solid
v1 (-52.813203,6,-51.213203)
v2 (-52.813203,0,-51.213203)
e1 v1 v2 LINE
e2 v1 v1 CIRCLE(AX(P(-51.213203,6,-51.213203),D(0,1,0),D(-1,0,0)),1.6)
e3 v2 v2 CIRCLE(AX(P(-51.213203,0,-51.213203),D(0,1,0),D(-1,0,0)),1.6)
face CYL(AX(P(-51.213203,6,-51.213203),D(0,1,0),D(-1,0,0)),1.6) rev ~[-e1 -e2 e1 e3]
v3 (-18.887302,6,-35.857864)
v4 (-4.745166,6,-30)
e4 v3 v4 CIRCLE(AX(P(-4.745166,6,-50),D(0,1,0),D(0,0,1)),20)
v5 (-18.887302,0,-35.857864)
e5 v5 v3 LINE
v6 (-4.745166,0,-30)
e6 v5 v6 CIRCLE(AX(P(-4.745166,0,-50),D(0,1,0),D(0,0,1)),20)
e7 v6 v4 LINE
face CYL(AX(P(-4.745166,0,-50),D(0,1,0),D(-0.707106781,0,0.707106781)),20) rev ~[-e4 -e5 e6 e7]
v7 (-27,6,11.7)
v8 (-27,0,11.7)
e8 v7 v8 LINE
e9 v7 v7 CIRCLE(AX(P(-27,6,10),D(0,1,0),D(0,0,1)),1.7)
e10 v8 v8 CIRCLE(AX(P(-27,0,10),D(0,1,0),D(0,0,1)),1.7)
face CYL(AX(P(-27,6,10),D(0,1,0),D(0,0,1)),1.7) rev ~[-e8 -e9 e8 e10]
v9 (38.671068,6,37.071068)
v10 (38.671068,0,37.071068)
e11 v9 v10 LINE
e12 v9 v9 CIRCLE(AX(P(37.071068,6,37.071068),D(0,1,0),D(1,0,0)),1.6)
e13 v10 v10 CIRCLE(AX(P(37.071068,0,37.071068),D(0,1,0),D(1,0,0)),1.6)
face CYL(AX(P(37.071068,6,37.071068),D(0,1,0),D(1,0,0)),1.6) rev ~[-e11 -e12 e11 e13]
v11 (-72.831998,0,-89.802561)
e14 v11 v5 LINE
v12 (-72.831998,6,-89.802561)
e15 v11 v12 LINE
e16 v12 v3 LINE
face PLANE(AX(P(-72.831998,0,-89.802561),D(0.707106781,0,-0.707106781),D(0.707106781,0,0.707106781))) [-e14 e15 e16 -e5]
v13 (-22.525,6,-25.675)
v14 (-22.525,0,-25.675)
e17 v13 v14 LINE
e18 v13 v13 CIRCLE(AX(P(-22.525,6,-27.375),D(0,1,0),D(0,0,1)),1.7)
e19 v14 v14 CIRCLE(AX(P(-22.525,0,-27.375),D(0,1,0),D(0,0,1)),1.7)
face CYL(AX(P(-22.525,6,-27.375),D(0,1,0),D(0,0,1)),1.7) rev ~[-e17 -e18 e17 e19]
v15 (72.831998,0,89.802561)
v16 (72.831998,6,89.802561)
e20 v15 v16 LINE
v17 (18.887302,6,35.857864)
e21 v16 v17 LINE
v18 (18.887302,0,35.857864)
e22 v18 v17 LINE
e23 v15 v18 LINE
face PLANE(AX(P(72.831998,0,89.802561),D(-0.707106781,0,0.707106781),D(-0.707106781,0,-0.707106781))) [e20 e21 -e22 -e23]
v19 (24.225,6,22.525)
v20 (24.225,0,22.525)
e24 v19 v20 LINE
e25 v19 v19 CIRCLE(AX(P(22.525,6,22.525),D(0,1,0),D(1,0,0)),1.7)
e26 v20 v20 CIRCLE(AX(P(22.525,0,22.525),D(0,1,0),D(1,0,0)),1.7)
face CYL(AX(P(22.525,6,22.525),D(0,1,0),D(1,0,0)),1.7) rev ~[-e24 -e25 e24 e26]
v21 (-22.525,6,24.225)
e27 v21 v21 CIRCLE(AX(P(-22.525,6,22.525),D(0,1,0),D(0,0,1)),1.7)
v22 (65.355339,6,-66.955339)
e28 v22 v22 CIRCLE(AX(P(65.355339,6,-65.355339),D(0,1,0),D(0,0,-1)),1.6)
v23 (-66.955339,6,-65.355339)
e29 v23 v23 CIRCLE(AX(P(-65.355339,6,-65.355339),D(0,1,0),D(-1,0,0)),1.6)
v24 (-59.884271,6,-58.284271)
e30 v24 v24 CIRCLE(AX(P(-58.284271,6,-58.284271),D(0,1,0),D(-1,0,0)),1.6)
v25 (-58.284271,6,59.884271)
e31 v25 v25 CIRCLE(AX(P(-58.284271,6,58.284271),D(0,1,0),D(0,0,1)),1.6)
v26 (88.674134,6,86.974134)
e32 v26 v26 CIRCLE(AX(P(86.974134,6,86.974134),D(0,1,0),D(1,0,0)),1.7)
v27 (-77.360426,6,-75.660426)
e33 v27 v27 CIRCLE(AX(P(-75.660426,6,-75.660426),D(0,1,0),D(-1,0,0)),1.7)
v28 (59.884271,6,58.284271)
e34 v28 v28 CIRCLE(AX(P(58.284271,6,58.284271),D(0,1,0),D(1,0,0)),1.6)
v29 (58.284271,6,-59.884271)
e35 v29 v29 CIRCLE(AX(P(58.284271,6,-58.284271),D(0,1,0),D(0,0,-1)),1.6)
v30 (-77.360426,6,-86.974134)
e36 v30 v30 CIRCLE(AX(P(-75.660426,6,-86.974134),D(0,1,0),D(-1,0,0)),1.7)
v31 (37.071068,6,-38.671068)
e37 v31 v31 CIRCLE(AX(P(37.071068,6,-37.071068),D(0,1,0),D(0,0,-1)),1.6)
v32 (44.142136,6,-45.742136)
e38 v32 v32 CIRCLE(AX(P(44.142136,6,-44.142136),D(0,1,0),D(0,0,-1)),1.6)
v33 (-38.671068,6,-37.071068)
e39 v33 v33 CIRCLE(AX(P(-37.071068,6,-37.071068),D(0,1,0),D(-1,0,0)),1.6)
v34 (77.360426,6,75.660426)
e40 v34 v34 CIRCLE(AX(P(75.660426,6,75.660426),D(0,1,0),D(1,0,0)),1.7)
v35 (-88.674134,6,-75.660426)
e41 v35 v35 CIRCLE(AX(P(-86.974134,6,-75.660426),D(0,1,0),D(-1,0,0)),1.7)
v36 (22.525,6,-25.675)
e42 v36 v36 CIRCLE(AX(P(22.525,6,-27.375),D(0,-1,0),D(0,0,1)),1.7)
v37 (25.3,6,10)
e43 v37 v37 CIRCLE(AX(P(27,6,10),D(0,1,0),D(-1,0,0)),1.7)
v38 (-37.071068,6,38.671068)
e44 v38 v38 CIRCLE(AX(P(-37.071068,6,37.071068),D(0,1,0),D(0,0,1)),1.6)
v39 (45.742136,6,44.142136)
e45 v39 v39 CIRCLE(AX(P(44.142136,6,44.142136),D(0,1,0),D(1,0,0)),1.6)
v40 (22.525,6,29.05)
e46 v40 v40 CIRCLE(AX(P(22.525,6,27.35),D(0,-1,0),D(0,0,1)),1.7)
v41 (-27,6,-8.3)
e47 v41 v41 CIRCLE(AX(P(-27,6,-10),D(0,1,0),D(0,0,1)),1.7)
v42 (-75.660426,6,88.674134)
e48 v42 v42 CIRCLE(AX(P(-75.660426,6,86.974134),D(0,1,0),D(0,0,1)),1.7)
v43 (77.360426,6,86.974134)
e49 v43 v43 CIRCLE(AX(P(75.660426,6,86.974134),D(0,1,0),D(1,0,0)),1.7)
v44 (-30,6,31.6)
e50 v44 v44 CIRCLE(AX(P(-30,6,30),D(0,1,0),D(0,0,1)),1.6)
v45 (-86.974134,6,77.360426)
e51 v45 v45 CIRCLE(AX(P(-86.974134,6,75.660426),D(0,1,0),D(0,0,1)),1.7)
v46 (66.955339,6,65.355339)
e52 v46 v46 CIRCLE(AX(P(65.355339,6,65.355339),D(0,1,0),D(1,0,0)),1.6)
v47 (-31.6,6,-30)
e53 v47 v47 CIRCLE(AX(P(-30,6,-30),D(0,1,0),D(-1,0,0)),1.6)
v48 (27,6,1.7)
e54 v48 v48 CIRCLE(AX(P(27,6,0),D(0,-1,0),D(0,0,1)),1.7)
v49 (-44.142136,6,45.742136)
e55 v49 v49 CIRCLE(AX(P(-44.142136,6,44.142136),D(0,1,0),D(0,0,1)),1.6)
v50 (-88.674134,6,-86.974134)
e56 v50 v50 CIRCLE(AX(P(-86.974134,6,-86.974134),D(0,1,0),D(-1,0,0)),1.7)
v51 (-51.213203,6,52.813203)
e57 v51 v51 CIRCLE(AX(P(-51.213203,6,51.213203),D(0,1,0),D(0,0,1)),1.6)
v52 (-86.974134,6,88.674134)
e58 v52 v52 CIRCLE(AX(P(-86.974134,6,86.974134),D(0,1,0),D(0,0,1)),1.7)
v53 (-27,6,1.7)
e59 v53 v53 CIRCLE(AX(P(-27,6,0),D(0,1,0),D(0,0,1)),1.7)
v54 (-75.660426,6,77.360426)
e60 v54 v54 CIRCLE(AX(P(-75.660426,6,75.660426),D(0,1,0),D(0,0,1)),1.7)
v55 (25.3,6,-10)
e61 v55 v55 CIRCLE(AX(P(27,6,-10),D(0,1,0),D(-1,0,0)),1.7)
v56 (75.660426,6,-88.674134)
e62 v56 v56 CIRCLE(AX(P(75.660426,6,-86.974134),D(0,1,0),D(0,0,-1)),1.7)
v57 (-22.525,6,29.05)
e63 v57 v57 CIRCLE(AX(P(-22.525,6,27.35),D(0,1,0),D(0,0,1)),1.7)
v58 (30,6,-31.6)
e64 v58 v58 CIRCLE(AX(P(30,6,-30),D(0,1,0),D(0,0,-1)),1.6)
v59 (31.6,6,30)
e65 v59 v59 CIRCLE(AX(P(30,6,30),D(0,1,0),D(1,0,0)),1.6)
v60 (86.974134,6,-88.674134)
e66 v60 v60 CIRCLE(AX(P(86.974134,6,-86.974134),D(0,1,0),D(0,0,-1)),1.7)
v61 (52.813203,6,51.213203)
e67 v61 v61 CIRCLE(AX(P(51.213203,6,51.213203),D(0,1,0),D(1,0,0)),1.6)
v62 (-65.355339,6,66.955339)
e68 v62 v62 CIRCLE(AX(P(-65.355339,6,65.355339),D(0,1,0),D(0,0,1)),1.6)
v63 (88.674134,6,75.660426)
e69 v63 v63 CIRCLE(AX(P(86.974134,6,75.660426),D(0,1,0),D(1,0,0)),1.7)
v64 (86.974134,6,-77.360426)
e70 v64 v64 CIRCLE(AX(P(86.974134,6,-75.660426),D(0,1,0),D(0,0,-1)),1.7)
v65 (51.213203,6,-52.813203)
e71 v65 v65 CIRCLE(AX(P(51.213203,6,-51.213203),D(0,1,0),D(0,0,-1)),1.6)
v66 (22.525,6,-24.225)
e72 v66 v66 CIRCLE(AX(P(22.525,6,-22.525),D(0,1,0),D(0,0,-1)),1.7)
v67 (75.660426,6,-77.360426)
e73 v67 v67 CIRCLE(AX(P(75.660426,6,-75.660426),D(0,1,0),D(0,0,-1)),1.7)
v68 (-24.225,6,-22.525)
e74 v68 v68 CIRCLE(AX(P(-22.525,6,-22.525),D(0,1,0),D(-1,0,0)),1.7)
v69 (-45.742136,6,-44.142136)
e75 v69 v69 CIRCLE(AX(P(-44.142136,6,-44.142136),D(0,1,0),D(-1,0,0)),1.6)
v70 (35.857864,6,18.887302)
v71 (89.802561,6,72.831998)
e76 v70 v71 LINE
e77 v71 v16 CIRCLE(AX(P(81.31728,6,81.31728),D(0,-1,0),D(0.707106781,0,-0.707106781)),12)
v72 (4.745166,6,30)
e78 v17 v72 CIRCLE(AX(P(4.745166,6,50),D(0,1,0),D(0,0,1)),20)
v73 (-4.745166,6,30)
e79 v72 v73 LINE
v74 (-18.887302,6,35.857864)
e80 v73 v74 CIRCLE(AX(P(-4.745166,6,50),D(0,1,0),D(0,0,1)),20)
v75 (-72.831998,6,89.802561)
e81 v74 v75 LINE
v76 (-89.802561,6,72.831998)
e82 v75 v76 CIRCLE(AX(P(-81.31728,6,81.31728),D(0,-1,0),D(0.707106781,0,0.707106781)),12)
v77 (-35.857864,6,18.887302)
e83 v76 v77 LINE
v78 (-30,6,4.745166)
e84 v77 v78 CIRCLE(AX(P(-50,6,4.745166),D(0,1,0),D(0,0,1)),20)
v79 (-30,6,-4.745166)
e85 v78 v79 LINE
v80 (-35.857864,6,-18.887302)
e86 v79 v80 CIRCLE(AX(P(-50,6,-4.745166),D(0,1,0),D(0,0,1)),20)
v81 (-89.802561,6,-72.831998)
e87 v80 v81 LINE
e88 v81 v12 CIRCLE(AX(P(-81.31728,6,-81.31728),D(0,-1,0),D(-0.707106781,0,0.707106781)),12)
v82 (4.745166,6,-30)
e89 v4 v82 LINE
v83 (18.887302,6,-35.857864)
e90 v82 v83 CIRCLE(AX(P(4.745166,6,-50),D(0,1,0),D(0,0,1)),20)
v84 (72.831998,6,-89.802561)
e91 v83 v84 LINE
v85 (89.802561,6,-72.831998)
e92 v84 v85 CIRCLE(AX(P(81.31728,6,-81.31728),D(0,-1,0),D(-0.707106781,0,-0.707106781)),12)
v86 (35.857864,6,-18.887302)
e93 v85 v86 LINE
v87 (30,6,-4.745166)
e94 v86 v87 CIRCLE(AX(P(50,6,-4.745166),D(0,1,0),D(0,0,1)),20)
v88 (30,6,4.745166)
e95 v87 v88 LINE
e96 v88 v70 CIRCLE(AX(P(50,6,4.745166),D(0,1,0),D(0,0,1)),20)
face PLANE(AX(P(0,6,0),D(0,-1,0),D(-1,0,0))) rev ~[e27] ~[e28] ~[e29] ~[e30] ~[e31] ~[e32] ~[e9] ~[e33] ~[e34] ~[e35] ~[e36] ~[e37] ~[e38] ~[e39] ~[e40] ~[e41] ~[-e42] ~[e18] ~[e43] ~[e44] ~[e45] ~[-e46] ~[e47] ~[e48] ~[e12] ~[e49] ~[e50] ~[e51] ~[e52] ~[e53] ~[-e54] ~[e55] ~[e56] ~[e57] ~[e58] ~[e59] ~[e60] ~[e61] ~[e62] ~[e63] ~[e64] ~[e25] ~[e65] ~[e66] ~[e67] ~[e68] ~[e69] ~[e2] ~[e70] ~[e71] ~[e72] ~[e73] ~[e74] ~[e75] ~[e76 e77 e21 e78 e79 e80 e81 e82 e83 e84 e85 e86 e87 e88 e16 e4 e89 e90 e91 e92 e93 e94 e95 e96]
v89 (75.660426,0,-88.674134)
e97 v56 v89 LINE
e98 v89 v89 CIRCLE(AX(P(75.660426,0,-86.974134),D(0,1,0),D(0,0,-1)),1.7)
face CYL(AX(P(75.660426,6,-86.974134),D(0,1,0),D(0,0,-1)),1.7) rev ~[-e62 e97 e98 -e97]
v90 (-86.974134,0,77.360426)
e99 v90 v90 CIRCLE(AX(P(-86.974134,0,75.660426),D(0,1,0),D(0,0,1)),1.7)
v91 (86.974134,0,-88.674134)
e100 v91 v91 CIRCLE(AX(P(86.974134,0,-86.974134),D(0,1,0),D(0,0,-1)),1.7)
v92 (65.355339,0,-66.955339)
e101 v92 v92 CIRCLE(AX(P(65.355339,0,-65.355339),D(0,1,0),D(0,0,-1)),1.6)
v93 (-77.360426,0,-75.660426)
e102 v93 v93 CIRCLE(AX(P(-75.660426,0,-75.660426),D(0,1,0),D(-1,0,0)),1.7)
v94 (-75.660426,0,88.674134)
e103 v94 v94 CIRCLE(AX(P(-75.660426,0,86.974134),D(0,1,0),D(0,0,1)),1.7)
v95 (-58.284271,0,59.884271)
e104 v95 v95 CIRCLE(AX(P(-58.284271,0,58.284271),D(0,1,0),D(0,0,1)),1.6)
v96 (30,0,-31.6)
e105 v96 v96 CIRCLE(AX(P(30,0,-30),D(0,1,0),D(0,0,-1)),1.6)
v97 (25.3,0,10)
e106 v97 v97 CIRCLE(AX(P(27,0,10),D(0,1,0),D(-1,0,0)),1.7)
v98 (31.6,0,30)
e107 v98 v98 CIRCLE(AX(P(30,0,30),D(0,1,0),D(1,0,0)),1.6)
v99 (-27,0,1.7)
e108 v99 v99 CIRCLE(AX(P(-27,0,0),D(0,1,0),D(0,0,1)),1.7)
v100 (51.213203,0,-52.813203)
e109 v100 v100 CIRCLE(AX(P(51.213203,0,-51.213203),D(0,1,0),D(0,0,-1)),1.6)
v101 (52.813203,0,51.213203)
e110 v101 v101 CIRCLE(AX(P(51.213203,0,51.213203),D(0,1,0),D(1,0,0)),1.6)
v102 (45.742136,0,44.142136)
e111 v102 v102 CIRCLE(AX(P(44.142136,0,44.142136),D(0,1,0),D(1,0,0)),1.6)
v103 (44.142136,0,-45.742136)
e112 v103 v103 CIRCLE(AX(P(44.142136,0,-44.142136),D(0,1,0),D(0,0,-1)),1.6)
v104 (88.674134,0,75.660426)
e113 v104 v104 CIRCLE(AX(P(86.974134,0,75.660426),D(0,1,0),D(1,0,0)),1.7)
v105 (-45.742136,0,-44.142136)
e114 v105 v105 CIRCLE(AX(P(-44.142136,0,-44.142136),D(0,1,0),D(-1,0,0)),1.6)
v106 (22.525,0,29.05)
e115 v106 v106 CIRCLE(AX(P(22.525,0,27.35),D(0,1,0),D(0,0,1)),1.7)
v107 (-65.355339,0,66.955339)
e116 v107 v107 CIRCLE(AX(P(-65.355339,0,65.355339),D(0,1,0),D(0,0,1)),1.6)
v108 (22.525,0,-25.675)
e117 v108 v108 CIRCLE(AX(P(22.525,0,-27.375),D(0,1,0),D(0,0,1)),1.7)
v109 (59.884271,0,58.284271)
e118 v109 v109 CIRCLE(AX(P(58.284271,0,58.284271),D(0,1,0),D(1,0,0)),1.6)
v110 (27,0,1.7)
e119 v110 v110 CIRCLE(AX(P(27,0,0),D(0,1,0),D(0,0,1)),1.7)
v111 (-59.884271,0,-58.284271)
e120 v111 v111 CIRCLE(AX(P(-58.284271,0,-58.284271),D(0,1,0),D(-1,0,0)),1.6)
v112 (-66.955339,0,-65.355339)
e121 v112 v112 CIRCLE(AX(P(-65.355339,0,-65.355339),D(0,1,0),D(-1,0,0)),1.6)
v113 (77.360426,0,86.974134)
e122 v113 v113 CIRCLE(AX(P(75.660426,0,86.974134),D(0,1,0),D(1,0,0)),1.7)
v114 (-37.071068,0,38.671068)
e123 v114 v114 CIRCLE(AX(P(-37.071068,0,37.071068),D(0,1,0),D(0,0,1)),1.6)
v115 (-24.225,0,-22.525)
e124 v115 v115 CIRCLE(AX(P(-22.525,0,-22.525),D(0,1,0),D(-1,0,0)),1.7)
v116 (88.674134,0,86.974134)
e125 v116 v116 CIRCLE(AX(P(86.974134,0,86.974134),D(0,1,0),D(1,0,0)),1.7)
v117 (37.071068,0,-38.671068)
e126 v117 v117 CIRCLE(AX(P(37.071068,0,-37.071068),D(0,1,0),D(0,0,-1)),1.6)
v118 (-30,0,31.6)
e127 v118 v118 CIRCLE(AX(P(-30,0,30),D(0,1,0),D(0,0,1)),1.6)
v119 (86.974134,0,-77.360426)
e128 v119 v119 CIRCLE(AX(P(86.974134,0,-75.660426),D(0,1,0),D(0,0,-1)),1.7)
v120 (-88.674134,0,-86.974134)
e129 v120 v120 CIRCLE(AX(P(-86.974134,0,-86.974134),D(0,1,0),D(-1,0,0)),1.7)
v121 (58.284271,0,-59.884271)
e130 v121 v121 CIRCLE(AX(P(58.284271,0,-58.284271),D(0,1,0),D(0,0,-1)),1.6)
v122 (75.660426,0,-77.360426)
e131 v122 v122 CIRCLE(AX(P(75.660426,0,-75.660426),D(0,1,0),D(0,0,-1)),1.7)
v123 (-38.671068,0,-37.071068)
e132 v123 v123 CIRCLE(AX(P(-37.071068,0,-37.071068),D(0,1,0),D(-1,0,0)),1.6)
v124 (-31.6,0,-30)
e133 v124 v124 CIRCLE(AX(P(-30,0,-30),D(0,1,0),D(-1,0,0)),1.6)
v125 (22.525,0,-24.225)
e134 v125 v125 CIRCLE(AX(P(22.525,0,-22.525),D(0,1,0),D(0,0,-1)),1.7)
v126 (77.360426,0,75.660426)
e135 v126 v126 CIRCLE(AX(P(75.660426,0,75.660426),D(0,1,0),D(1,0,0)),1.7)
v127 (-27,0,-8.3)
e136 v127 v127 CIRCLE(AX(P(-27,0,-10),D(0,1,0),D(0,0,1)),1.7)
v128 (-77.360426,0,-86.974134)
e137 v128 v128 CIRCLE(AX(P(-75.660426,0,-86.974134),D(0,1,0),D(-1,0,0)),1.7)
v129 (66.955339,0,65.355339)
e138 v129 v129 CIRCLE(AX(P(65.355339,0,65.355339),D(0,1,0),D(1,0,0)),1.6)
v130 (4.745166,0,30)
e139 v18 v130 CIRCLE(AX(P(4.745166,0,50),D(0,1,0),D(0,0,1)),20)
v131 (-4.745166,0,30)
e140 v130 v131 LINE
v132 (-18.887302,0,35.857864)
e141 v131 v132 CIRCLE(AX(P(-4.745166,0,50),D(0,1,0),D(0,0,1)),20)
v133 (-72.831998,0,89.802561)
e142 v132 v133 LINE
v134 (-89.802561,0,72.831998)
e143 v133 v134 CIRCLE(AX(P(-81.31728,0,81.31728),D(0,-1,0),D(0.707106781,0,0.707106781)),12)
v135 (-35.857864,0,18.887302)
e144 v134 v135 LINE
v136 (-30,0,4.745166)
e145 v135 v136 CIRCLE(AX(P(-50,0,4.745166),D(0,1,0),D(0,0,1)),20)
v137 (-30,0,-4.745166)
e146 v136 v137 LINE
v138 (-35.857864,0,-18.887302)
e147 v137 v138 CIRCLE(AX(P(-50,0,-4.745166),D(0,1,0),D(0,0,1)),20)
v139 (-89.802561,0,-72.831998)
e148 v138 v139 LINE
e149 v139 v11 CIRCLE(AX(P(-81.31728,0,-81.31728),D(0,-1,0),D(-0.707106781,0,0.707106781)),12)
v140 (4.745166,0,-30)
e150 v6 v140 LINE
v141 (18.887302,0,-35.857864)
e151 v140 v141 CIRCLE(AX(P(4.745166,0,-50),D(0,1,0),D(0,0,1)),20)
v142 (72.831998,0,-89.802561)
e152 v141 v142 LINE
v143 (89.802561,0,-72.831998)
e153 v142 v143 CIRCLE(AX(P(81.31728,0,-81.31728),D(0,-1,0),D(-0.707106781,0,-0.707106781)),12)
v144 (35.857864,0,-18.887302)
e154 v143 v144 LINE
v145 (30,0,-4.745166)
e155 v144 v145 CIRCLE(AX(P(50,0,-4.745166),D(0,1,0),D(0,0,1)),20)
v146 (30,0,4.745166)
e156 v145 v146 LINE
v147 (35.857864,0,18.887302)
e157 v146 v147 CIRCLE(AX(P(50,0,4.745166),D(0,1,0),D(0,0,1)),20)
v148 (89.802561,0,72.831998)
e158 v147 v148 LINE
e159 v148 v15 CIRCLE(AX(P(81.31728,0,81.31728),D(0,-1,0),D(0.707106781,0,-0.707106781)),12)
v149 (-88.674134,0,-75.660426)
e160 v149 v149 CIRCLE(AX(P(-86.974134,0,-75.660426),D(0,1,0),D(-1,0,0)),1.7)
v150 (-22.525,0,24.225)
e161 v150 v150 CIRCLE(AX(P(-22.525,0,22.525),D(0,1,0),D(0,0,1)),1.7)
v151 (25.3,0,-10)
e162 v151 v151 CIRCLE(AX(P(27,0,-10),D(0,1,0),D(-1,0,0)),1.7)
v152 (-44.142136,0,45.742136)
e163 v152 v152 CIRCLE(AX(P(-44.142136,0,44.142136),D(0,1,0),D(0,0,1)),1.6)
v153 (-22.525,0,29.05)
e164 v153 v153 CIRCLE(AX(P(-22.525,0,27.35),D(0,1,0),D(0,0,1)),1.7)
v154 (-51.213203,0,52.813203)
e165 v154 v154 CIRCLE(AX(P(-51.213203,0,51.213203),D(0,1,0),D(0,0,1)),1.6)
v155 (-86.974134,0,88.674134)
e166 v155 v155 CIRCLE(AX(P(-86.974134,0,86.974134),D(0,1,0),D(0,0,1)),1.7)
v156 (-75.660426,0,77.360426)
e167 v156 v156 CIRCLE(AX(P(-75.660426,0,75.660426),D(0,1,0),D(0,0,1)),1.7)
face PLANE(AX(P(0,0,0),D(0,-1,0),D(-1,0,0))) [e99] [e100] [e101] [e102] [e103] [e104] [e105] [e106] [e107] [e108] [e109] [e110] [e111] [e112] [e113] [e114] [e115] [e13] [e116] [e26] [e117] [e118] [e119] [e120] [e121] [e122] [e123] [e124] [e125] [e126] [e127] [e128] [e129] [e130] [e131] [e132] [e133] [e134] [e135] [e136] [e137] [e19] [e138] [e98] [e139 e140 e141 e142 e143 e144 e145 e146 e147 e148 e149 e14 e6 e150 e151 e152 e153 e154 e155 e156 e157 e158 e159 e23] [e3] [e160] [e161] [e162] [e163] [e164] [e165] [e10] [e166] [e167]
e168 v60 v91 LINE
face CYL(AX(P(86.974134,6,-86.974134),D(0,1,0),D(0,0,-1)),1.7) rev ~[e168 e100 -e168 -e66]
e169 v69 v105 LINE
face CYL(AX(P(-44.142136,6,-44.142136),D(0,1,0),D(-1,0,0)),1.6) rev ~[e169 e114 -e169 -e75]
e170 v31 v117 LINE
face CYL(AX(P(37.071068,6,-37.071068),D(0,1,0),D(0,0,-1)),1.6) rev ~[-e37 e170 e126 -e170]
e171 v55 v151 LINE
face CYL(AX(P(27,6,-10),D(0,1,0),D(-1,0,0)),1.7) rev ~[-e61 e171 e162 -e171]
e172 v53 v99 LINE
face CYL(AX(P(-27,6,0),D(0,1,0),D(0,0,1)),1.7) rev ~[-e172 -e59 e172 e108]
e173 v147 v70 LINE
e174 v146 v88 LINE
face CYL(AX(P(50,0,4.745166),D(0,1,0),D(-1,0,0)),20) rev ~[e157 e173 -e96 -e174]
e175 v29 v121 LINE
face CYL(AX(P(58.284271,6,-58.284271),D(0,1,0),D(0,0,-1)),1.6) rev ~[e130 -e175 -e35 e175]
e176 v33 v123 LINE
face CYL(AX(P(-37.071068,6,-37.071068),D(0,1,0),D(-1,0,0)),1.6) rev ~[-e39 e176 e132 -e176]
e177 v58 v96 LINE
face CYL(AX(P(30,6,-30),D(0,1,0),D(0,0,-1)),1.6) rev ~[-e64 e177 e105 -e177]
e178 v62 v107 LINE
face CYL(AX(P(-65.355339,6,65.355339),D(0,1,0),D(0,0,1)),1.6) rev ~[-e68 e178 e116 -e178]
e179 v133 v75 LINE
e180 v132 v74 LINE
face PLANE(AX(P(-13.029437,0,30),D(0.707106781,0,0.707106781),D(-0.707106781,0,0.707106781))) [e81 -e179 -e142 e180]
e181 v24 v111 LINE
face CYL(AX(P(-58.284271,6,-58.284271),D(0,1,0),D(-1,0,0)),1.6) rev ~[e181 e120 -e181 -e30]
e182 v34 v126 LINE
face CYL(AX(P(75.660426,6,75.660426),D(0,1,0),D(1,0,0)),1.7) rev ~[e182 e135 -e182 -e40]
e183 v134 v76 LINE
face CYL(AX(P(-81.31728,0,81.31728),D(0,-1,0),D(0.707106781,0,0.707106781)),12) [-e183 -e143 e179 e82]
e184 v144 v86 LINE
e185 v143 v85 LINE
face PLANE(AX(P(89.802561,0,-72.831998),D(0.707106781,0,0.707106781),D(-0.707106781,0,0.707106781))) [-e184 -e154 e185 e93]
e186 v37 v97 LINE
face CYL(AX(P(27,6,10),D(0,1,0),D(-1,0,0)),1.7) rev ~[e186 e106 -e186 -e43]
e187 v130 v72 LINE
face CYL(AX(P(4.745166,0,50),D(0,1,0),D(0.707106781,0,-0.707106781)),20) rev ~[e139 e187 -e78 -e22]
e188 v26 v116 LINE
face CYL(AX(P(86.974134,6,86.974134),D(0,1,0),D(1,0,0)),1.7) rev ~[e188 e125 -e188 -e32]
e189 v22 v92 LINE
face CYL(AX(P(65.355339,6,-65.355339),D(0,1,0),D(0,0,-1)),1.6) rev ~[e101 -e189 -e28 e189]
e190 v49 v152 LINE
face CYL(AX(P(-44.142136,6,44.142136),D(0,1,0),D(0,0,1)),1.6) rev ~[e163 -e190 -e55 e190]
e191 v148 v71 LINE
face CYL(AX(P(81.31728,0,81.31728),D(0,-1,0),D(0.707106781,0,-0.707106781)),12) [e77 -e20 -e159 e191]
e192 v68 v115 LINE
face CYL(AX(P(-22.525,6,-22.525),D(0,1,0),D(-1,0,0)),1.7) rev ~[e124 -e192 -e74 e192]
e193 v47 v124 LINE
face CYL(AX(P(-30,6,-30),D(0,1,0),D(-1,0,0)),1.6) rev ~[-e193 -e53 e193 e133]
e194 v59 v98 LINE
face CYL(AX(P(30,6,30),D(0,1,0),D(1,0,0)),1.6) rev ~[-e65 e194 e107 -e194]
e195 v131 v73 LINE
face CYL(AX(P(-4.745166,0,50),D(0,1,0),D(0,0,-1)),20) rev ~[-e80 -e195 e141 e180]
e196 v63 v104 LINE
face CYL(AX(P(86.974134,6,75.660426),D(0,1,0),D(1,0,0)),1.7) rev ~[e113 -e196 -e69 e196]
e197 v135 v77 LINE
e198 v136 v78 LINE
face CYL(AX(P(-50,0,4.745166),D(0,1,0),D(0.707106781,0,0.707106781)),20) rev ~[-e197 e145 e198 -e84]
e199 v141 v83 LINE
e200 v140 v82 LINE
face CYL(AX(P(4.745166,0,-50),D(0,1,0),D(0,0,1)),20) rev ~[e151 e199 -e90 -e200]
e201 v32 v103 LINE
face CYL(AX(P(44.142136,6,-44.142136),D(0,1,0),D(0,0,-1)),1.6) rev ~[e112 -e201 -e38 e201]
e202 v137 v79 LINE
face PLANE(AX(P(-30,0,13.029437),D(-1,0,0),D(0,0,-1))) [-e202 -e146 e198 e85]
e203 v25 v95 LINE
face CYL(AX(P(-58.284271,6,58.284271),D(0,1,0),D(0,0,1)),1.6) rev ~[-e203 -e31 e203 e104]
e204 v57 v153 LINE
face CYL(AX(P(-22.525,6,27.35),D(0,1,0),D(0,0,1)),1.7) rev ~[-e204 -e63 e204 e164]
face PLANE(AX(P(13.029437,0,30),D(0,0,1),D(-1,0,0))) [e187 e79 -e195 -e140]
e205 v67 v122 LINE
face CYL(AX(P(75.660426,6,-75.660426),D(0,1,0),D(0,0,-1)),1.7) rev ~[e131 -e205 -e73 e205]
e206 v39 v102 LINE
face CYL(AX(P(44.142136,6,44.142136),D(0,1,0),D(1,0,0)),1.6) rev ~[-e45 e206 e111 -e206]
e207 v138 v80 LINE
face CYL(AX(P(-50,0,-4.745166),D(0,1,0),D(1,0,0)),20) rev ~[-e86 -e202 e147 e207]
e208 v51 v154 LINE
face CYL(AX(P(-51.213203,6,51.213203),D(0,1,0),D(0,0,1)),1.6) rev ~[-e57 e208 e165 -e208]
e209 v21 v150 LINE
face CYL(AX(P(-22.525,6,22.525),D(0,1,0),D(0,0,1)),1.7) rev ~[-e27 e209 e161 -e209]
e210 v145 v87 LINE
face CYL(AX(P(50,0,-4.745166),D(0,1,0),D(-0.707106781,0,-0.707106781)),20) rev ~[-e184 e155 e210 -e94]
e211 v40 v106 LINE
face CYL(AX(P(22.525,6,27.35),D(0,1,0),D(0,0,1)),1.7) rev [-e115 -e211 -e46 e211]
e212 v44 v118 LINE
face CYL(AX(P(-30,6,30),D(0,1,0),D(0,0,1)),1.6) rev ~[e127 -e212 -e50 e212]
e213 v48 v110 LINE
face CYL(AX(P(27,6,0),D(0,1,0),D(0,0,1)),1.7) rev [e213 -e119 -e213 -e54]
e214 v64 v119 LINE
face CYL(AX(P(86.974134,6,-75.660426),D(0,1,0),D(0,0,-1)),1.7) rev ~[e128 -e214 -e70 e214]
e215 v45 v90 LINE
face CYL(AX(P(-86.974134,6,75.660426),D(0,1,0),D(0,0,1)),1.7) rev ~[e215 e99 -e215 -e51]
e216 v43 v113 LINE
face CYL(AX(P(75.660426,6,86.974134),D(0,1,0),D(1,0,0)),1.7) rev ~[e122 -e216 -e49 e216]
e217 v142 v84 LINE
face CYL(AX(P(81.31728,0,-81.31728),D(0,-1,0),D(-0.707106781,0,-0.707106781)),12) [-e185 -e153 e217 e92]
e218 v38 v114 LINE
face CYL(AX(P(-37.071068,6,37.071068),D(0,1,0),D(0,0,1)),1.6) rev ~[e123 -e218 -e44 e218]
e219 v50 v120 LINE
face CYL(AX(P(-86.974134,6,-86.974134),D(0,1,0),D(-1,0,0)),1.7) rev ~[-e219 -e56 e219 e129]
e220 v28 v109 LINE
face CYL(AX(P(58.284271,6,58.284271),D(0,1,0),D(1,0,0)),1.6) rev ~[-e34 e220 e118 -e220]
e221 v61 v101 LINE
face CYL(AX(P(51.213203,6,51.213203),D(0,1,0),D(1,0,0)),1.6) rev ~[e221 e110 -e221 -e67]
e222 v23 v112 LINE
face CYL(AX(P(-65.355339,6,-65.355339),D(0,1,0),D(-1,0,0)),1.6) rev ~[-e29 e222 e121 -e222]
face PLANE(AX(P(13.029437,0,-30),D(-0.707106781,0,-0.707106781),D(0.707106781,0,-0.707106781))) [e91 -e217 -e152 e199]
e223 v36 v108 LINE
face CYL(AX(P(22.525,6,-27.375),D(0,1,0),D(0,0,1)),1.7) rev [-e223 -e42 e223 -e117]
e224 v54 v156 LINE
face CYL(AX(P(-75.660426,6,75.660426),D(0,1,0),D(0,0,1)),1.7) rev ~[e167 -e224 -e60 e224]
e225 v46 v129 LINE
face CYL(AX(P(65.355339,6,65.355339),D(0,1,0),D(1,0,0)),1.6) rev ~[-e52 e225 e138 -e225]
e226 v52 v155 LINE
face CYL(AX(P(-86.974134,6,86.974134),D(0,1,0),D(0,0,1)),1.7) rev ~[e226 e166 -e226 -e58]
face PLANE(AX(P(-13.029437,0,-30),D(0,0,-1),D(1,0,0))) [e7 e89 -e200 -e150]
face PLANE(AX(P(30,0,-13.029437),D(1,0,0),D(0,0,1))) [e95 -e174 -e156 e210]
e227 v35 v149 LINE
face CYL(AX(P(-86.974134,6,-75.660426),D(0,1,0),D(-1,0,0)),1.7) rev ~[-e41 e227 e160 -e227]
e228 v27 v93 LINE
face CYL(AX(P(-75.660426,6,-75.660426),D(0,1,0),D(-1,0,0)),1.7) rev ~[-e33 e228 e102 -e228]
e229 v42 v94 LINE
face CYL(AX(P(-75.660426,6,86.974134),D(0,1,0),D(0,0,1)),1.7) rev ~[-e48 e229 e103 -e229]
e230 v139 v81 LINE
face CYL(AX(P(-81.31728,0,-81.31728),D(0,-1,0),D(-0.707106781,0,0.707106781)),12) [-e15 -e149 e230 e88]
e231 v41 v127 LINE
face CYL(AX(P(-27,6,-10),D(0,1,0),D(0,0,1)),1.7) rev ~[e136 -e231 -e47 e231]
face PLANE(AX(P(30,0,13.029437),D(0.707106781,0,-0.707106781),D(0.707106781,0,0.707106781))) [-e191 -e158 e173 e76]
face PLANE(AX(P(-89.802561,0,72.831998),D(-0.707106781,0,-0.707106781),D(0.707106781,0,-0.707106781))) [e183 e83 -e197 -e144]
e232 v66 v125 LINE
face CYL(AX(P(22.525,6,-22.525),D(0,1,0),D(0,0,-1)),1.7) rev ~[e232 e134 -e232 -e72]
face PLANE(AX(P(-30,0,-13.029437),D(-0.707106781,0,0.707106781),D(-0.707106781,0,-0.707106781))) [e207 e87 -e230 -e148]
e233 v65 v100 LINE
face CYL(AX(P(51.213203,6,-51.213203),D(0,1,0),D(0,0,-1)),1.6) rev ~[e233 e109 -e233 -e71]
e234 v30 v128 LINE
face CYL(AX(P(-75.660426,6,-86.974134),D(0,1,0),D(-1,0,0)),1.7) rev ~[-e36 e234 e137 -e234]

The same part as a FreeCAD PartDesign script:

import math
import FreeCAD as App
import Part
import Sketcher

V = App.Vector
Q = App.Units.Quantity


def edges_at(feature, points):
    """Names of the edges that pass closest to the given points."""
    edges = feature.Shape.Edges
    near = lambda p: min(range(len(edges)), key=lambda i: edges[i].distToShape(Part.Vertex(*p))[0])
    return sorted({f"Edge{near(p) + 1}" for p in points})

doc = App.newDocument("Part")
body = doc.addObject("PartDesign::Body", "Body")

sketch1 = body.newObject("Sketcher::SketchObject", "Sketch")
sketch1.AttachmentSupport = (doc.getObject("XZ_Plane"), [""])
sketch1.MapMode = "FlatFace"
sketch1.addGeometry([
    Part.LineSegment(V(-13, -30, 0), V(-73, -90, 0)),
    Part.ArcOfCircle(Part.Circle(V(-81, -81, 0), V(0, 0, 1), 12), math.radians(135), math.radians(315)),
    Part.LineSegment(V(-90, -73, 0), V(-30, -13, 0)),
    Part.LineSegment(V(-30, -13, 0), V(-30, 13, 0)),
    Part.LineSegment(V(-30, 13, 0), V(-90, 73, 0)),
    Part.ArcOfCircle(Part.Circle(V(-81, 81, 0), V(0, 0, 1), 12), math.radians(45), math.radians(225)),
    Part.LineSegment(V(-73, 90, 0), V(-13, 30, 0)),
    Part.LineSegment(V(-13, 30, 0), V(13, 30, 0)),
    Part.LineSegment(V(13, 30, 0), V(73, 90, 0)),
    Part.ArcOfCircle(Part.Circle(V(81, 81, 0), V(0, 0, 1), 12), math.radians(-45), math.radians(135)),
    Part.LineSegment(V(90, 73, 0), V(30, 13, 0)),
    Part.LineSegment(V(30, 13, 0), V(30, -13, 0)),
    Part.LineSegment(V(30, -13, 0), V(90, -73, 0)),
    Part.ArcOfCircle(Part.Circle(V(81, -81, 0), V(0, 0, 1), 12), math.radians(-135), math.radians(45)),
    Part.LineSegment(V(73, -90, 0), V(13, -30, 0)),
    Part.LineSegment(V(13, -30, 0), V(-13, -30, 0)),
], False)
sketch1.addConstraint([
    Sketcher.Constraint("Tangent", 0, 2, 1, 2),
    Sketcher.Constraint("Tangent", 1, 1, 2, 1),
    Sketcher.Constraint("Coincident", 2, 2, 3, 1),
    Sketcher.Constraint("Coincident", 3, 2, 4, 1),
    Sketcher.Constraint("Tangent", 4, 2, 5, 2),
    Sketcher.Constraint("Tangent", 5, 1, 6, 1),
    Sketcher.Constraint("Coincident", 6, 2, 7, 1),
    Sketcher.Constraint("Coincident", 7, 2, 8, 1),
    Sketcher.Constraint("Tangent", 8, 2, 9, 2),
    Sketcher.Constraint("Tangent", 9, 1, 10, 1),
    Sketcher.Constraint("Coincident", 10, 2, 11, 1),
    Sketcher.Constraint("Coincident", 11, 2, 12, 1),
    Sketcher.Constraint("Tangent", 12, 2, 13, 2),
    Sketcher.Constraint("Tangent", 13, 1, 14, 1),
    Sketcher.Constraint("Coincident", 14, 2, 15, 1),
    Sketcher.Constraint("Coincident", 15, 2, 0, 1),
    Sketcher.Constraint("Vertical", 3),
    Sketcher.Constraint("Horizontal", 7),
    Sketcher.Constraint("Vertical", 11),
    Sketcher.Constraint("Horizontal", 15),
    Sketcher.Constraint("Equal", 1, 5),
    Sketcher.Constraint("Equal", 5, 9),
    Sketcher.Constraint("Equal", 9, 13),
    Sketcher.Constraint("Symmetric", 1, 3, 9, 3, -1, 1),
    Sketcher.Constraint("Symmetric", 5, 3, 13, 3, -1, 1),
    Sketcher.Constraint("Symmetric", 2, 2, 10, 2, -1, 1),
    Sketcher.Constraint("Symmetric", 6, 2, 14, 2, -1, 1),
    Sketcher.Constraint("Symmetric", 5, 3, 9, 3, -2),
    Sketcher.Constraint("Parallel", 0, 2),
    Sketcher.Constraint("Perpendicular", 2, 4),
    Sketcher.Constraint("Parallel", 4, 6),
    Sketcher.Constraint("Perpendicular", 6, 8),
    Sketcher.Constraint("Perpendicular", 10, 12),
    Sketcher.Constraint("Horizontal", 5, 1, 8, 2),
    Sketcher.Constraint("Equal", 15, 3),
    Sketcher.Constraint("Equal", 0, 2),
    Sketcher.Constraint("Radius", 1, Q("12 mm")),
    Sketcher.Constraint("DistanceX", 2, 2, -1, 1, Q("30 mm")),
    Sketcher.Constraint("DistanceX", 0, 2, -1, 1, Q("72.831998 mm")),
])
pad1 = body.newObject("PartDesign::Pad", "Pad")
pad1.Profile = sketch1
pad1.Length = 6
pad1.Reversed = True
doc.recompute()

fillet = body.newObject("PartDesign::Fillet", "Fillet")
fillet.Base = (pad1, edges_at(pad1, [
    (-13.029, 3, -30),
    (13.029, 3, -30),
    (30, 3, -13.029),
    (30, 3, 13.029),
    (13.029, 3, 30),
    (-13.029, 3, 30),
    (-30, 3, 13.029),
    (-30, 3, -13.029),
]))
fillet.Radius = 20

sketch2 = body.newObject("Sketcher::SketchObject", "Sketch001")
sketch2.AttachmentSupport = (doc.getObject("XZ_Plane"), [""])
sketch2.MapMode = "FlatFace"
sketch2.AttachmentOffset = App.Placement(V(0, 0, -6), App.Rotation())
sketch2.addGeometry(Part.Circle(V(-22.5, 22.5, 0), V(0, 0, 1), 1.7), False)
sketch2.addConstraint([
    Sketcher.Constraint("Diameter", 0, Q("3.4 mm")),
    Sketcher.Constraint("DistanceX", 0, 3, -1, 1, Q("22.525 mm")),
    Sketcher.Constraint("DistanceY", -1, 1, 0, 3, Q("22.525 mm")),
])
pocket1 = body.newObject("PartDesign::Pocket", "Pocket")
pocket1.Profile = sketch2
pocket1.Type = "ThroughAll"
pocket1.Reversed = True
doc.recompute()

polarpattern = body.newObject("PartDesign::PolarPattern", "PolarPattern")
polarpattern.Originals = [pocket1]
polarpattern.Axis = (doc.getObject("Y_Axis"), [""])
polarpattern.Angle = 360
polarpattern.Occurrences = 4
body.Tip = polarpattern

sketch3 = body.newObject("Sketcher::SketchObject", "Sketch002")
sketch3.AttachmentSupport = (doc.getObject("XZ_Plane"), [""])
sketch3.MapMode = "FlatFace"
sketch3.AttachmentOffset = App.Placement(V(0, 0, -6), App.Rotation())
sketch3.addGeometry(Part.Circle(V(-30, 30, 0), V(0, 0, 1), 1.6), False)
sketch3.addConstraint([
    Sketcher.Constraint("Diameter", 0, Q("3.2 mm")),
    Sketcher.Constraint("DistanceX", 0, 3, -1, 1, Q("30 mm")),
    Sketcher.Constraint("DistanceY", -1, 1, 0, 3, Q("30 mm")),
])
pocket2 = body.newObject("PartDesign::Pocket", "Pocket001")
pocket2.Profile = sketch3
pocket2.Type = "ThroughAll"
pocket2.Reversed = True
doc.recompute()

datumline = body.newObject("PartDesign::Line", "DatumLine")
datumline.Placement = App.Placement(V(0, 0, 0), App.Rotation(V(0, 0, 1), V(-0.707106781, 0, 0.707106781)))
linearpattern = body.newObject("PartDesign::LinearPattern", "LinearPattern")
linearpattern.Originals = [pocket2]
linearpattern.Direction = (datumline, [""])
linearpattern.Mode = "offset"
linearpattern.Offset = 10
linearpattern.Occurrences = 6
body.Tip = linearpattern
doc.recompute()

polarpattern2 = body.newObject("PartDesign::PolarPattern", "PolarPattern001")
polarpattern2.Originals = [pocket2]
polarpattern2.Axis = (doc.getObject("Y_Axis"), [""])
polarpattern2.Angle = 360
polarpattern2.Occurrences = 4
body.Tip = polarpattern2

sketch4 = body.newObject("Sketcher::SketchObject", "Sketch003")
sketch4.AttachmentSupport = (doc.getObject("XZ_Plane"), [""])
sketch4.MapMode = "FlatFace"
sketch4.AttachmentOffset = App.Placement(V(0, 0, -6), App.Rotation())
sketch4.addGeometry(Part.Circle(V(-37.1, -37.1, 0), V(0, 0, 1), 1.6), False)
sketch4.addConstraint([
    Sketcher.Constraint("Diameter", 0, Q("3.2 mm")),
    Sketcher.Constraint("DistanceX", 0, 3, -1, 1, Q("37.071068 mm")),
    Sketcher.Constraint("DistanceY", 0, 3, -1, 1, Q("37.071068 mm")),
])
pocket3 = body.newObject("PartDesign::Pocket", "Pocket002")
pocket3.Profile = sketch4
pocket3.Type = "ThroughAll"
pocket3.Reversed = True

sketch5 = body.newObject("Sketcher::SketchObject", "Sketch004")
sketch5.AttachmentSupport = (doc.getObject("XZ_Plane"), [""])
sketch5.MapMode = "FlatFace"
sketch5.AttachmentOffset = App.Placement(V(0, 0, -6), App.Rotation())
sketch5.addGeometry(Part.Circle(V(37.1, -37.1, 0), V(0, 0, 1), 1.6), False)
sketch5.addConstraint([
    Sketcher.Constraint("Diameter", 0, Q("3.2 mm")),
    Sketcher.Constraint("DistanceX", -1, 1, 0, 3, Q("37.071068 mm")),
    Sketcher.Constraint("DistanceY", 0, 3, -1, 1, Q("37.071068 mm")),
])
pocket4 = body.newObject("PartDesign::Pocket", "Pocket003")
pocket4.Profile = sketch5
pocket4.Type = "ThroughAll"
pocket4.Reversed = True

sketch6 = body.newObject("Sketcher::SketchObject", "Sketch005")
sketch6.AttachmentSupport = (doc.getObject("XZ_Plane"), [""])
sketch6.MapMode = "FlatFace"
sketch6.AttachmentOffset = App.Placement(V(0, 0, -6), App.Rotation())
sketch6.addGeometry(Part.Circle(V(37.1, 37.1, 0), V(0, 0, 1), 1.6), False)
sketch6.addConstraint([
    Sketcher.Constraint("Diameter", 0, Q("3.2 mm")),
    Sketcher.Constraint("DistanceX", -1, 1, 0, 3, Q("37.071068 mm")),
    Sketcher.Constraint("DistanceY", -1, 1, 0, 3, Q("37.071068 mm")),
])
pocket5 = body.newObject("PartDesign::Pocket", "Pocket004")
pocket5.Profile = sketch6
pocket5.Type = "ThroughAll"
pocket5.Reversed = True

sketch7 = body.newObject("Sketcher::SketchObject", "Sketch006")
sketch7.AttachmentSupport = (doc.getObject("XZ_Plane"), [""])
sketch7.MapMode = "FlatFace"
sketch7.AttachmentOffset = App.Placement(V(0, 0, -6), App.Rotation())
sketch7.addGeometry(Part.Circle(V(-44.1, -44.1, 0), V(0, 0, 1), 1.6), False)
sketch7.addConstraint([
    Sketcher.Constraint("Diameter", 0, Q("3.2 mm")),
    Sketcher.Constraint("DistanceX", 0, 3, -1, 1, Q("44.142136 mm")),
    Sketcher.Constraint("DistanceY", 0, 3, -1, 1, Q("44.142136 mm")),
])
pocket6 = body.newObject("PartDesign::Pocket", "Pocket005")
pocket6.Profile = sketch7
pocket6.Type = "ThroughAll"
pocket6.Reversed = True

sketch8 = body.newObject("Sketcher::SketchObject", "Sketch007")
sketch8.AttachmentSupport = (doc.getObject("XZ_Plane"), [""])
sketch8.MapMode = "FlatFace"
sketch8.AttachmentOffset = App.Placement(V(0, 0, -6), App.Rotation())
sketch8.addGeometry(Part.Circle(V(44.1, -44.1, 0), V(0, 0, 1), 1.6), False)
sketch8.addConstraint([
    Sketcher.Constraint("Diameter", 0, Q("3.2 mm")),
    Sketcher.Constraint("DistanceX", -1, 1, 0, 3, Q("44.142136 mm")),
    Sketcher.Constraint("DistanceY", 0, 3, -1, 1, Q("44.142136 mm")),
])
pocket7 = body.newObject("PartDesign::Pocket", "Pocket006")
pocket7.Profile = sketch8
pocket7.Type = "ThroughAll"
pocket7.Reversed = True

sketch9 = body.newObject("Sketcher::SketchObject", "Sketch008")
sketch9.AttachmentSupport = (doc.getObject("XZ_Plane"), [""])
sketch9.MapMode = "FlatFace"
sketch9.AttachmentOffset = App.Placement(V(0, 0, -6), App.Rotation())
sketch9.addGeometry(Part.Circle(V(44.1, 44.1, 0), V(0, 0, 1), 1.6), False)
sketch9.addConstraint([
    Sketcher.Constraint("Diameter", 0, Q("3.2 mm")),
    Sketcher.Constraint("DistanceX", -1, 1, 0, 3, Q("44.142136 mm")),
    Sketcher.Constraint("DistanceY", -1, 1, 0, 3, Q("44.142136 mm")),
])
pocket8 = body.newObject("PartDesign::Pocket", "Pocket007")
pocket8.Profile = sketch9
pocket8.Type = "ThroughAll"
pocket8.Reversed = True

sketch10 = body.newObject("Sketcher::SketchObject", "Sketch009")
sketch10.AttachmentSupport = (doc.getObject("XZ_Plane"), [""])
sketch10.MapMode = "FlatFace"
sketch10.AttachmentOffset = App.Placement(V(0, 0, -6), App.Rotation())
sketch10.addGeometry(Part.Circle(V(-51.2, -51.2, 0), V(0, 0, 1), 1.6), False)
sketch10.addConstraint([
    Sketcher.Constraint("Diameter", 0, Q("3.2 mm")),
    Sketcher.Constraint("DistanceX", 0, 3, -1, 1, Q("51.213203 mm")),
    Sketcher.Constraint("DistanceY", 0, 3, -1, 1, Q("51.213203 mm")),
])
pocket9 = body.newObject("PartDesign::Pocket", "Pocket008")
pocket9.Profile = sketch10
pocket9.Type = "ThroughAll"
pocket9.Reversed = True

sketch11 = body.newObject("Sketcher::SketchObject", "Sketch010")
sketch11.AttachmentSupport = (doc.getObject("XZ_Plane"), [""])
sketch11.MapMode = "FlatFace"
sketch11.AttachmentOffset = App.Placement(V(0, 0, -6), App.Rotation())
sketch11.addGeometry(Part.Circle(V(51.2, -51.2, 0), V(0, 0, 1), 1.6), False)
sketch11.addConstraint([
    Sketcher.Constraint("Diameter", 0, Q("3.2 mm")),
    Sketcher.Constraint("DistanceX", -1, 1, 0, 3, Q("51.213203 mm")),
    Sketcher.Constraint("DistanceY", 0, 3, -1, 1, Q("51.213203 mm")),
])
pocket10 = body.newObject("PartDesign::Pocket", "Pocket009")
pocket10.Profile = sketch11
pocket10.Type = "ThroughAll"
pocket10.Reversed = True

sketch12 = body.newObject("Sketcher::SketchObject", "Sketch011")
sketch12.AttachmentSupport = (doc.getObject("XZ_Plane"), [""])
sketch12.MapMode = "FlatFace"
sketch12.AttachmentOffset = App.Placement(V(0, 0, -6), App.Rotation())
sketch12.addGeometry(Part.Circle(V(51.2, 51.2, 0), V(0, 0, 1), 1.6), False)
sketch12.addConstraint([
    Sketcher.Constraint("Diameter", 0, Q("3.2 mm")),
    Sketcher.Constraint("DistanceX", -1, 1, 0, 3, Q("51.213203 mm")),
    Sketcher.Constraint("DistanceY", -1, 1, 0, 3, Q("51.213203 mm")),
])
pocket11 = body.newObject("PartDesign::Pocket", "Pocket010")
pocket11.Profile = sketch12
pocket11.Type = "ThroughAll"
pocket11.Reversed = True

sketch13 = body.newObject("Sketcher::SketchObject", "Sketch012")
sketch13.AttachmentSupport = (doc.getObject("XZ_Plane"), [""])
sketch13.MapMode = "FlatFace"
sketch13.AttachmentOffset = App.Placement(V(0, 0, -6), App.Rotation())
sketch13.addGeometry(Part.Circle(V(-58.3, -58.3, 0), V(0, 0, 1), 1.6), False)
sketch13.addConstraint([
    Sketcher.Constraint("Diameter", 0, Q("3.2 mm")),
    Sketcher.Constraint("DistanceX", 0, 3, -1, 1, Q("58.284271 mm")),
    Sketcher.Constraint("DistanceY", 0, 3, -1, 1, Q("58.284271 mm")),
])
pocket12 = body.newObject("PartDesign::Pocket", "Pocket011")
pocket12.Profile = sketch13
pocket12.Type = "ThroughAll"
pocket12.Reversed = True

sketch14 = body.newObject("Sketcher::SketchObject", "Sketch013")
sketch14.AttachmentSupport = (doc.getObject("XZ_Plane"), [""])
sketch14.MapMode = "FlatFace"
sketch14.AttachmentOffset = App.Placement(V(0, 0, -6), App.Rotation())
sketch14.addGeometry(Part.Circle(V(58.3, -58.3, 0), V(0, 0, 1), 1.6), False)
sketch14.addConstraint([
    Sketcher.Constraint("Diameter", 0, Q("3.2 mm")),
    Sketcher.Constraint("DistanceX", -1, 1, 0, 3, Q("58.284271 mm")),
    Sketcher.Constraint("DistanceY", 0, 3, -1, 1, Q("58.284271 mm")),
])
pocket13 = body.newObject("PartDesign::Pocket", "Pocket012")
pocket13.Profile = sketch14
pocket13.Type = "ThroughAll"
pocket13.Reversed = True

sketch15 = body.newObject("Sketcher::SketchObject", "Sketch014")
sketch15.AttachmentSupport = (doc.getObject("XZ_Plane"), [""])
sketch15.MapMode = "FlatFace"
sketch15.AttachmentOffset = App.Placement(V(0, 0, -6), App.Rotation())
sketch15.addGeometry(Part.Circle(V(58.3, 58.3, 0), V(0, 0, 1), 1.6), False)
sketch15.addConstraint([
    Sketcher.Constraint("Diameter", 0, Q("3.2 mm")),
    Sketcher.Constraint("DistanceX", -1, 1, 0, 3, Q("58.284271 mm")),
    Sketcher.Constraint("DistanceY", -1, 1, 0, 3, Q("58.284271 mm")),
])
pocket14 = body.newObject("PartDesign::Pocket", "Pocket013")
pocket14.Profile = sketch15
pocket14.Type = "ThroughAll"
pocket14.Reversed = True

sketch16 = body.newObject("Sketcher::SketchObject", "Sketch015")
sketch16.AttachmentSupport = (doc.getObject("XZ_Plane"), [""])
sketch16.MapMode = "FlatFace"
sketch16.AttachmentOffset = App.Placement(V(0, 0, -6), App.Rotation())
sketch16.addGeometry(Part.Circle(V(-65.4, -65.4, 0), V(0, 0, 1), 1.6), False)
sketch16.addConstraint([
    Sketcher.Constraint("Diameter", 0, Q("3.2 mm")),
    Sketcher.Constraint("DistanceX", 0, 3, -1, 1, Q("65.355339 mm")),
    Sketcher.Constraint("DistanceY", 0, 3, -1, 1, Q("65.355339 mm")),
])
pocket15 = body.newObject("PartDesign::Pocket", "Pocket014")
pocket15.Profile = sketch16
pocket15.Type = "ThroughAll"
pocket15.Reversed = True

sketch17 = body.newObject("Sketcher::SketchObject", "Sketch016")
sketch17.AttachmentSupport = (doc.getObject("XZ_Plane"), [""])
sketch17.MapMode = "FlatFace"
sketch17.AttachmentOffset = App.Placement(V(0, 0, -6), App.Rotation())
sketch17.addGeometry(Part.Circle(V(65.4, -65.4, 0), V(0, 0, 1), 1.6), False)
sketch17.addConstraint([
    Sketcher.Constraint("Diameter", 0, Q("3.2 mm")),
    Sketcher.Constraint("DistanceX", -1, 1, 0, 3, Q("65.355339 mm")),
    Sketcher.Constraint("DistanceY", 0, 3, -1, 1, Q("65.355339 mm")),
])
pocket16 = body.newObject("PartDesign::Pocket", "Pocket015")
pocket16.Profile = sketch17
pocket16.Type = "ThroughAll"
pocket16.Reversed = True

sketch18 = body.newObject("Sketcher::SketchObject", "Sketch017")
sketch18.AttachmentSupport = (doc.getObject("XZ_Plane"), [""])
sketch18.MapMode = "FlatFace"
sketch18.AttachmentOffset = App.Placement(V(0, 0, -6), App.Rotation())
sketch18.addGeometry(Part.Circle(V(65.4, 65.4, 0), V(0, 0, 1), 1.6), False)
sketch18.addConstraint([
    Sketcher.Constraint("Diameter", 0, Q("3.2 mm")),
    Sketcher.Constraint("DistanceX", -1, 1, 0, 3, Q("65.355339 mm")),
    Sketcher.Constraint("DistanceY", -1, 1, 0, 3, Q("65.355339 mm")),
])
pocket17 = body.newObject("PartDesign::Pocket", "Pocket016")
pocket17.Profile = sketch18
pocket17.Type = "ThroughAll"
pocket17.Reversed = True

sketch19 = body.newObject("Sketcher::SketchObject", "Sketch018")
sketch19.AttachmentSupport = (doc.getObject("XZ_Plane"), [""])
sketch19.MapMode = "FlatFace"
sketch19.AttachmentOffset = App.Placement(V(0, 0, -6), App.Rotation())
sketch19.addGeometry([
    Part.Circle(V(-87, 87, 0), V(0, 0, 1), 1.7),
    Part.Circle(V(-87, 75.7, 0), V(0, 0, 1), 1.7),
    Part.Circle(V(-75.7, 75.7, 0), V(0, 0, 1), 1.7),
    Part.Circle(V(-75.7, 87, 0), V(0, 0, 1), 1.7),
], False)
sketch19.addConstraint([
    Sketcher.Constraint("Equal", 0, 1),
    Sketcher.Constraint("Equal", 1, 2),
    Sketcher.Constraint("Equal", 2, 3),
    Sketcher.Constraint("Horizontal", 1, 3, 2, 3),
    Sketcher.Constraint("Horizontal", 0, 3, 3, 3),
    Sketcher.Constraint("Vertical", 0, 3, 1, 3),
    Sketcher.Constraint("Vertical", 2, 3, 3, 3),
    Sketcher.Constraint("Diameter", 0, Q("3.4 mm")),
    Sketcher.Constraint("DistanceY", 1, 3, 0, 3, Q("11.313708 mm")),
    Sketcher.Constraint("DistanceX", 1, 3, 2, 3, Q("11.313708 mm")),
    Sketcher.Constraint("DistanceX", 0, 3, -1, 1, Q("86.974134 mm")),
    Sketcher.Constraint("DistanceY", -1, 1, 0, 3, Q("86.974134 mm")),
])
pocket18 = body.newObject("PartDesign::Pocket", "Pocket017")
pocket18.Profile = sketch19
pocket18.Type = "ThroughAll"
pocket18.Reversed = True
doc.recompute()

polarpattern3 = body.newObject("PartDesign::PolarPattern", "PolarPattern002")
polarpattern3.Originals = [pocket18]
polarpattern3.Axis = (doc.getObject("Y_Axis"), [""])
polarpattern3.Angle = 360
polarpattern3.Occurrences = 4
body.Tip = polarpattern3

sketch20 = body.newObject("Sketcher::SketchObject", "Sketch019")
sketch20.AttachmentSupport = (doc.getObject("XZ_Plane"), [""])
sketch20.MapMode = "FlatFace"
sketch20.AttachmentOffset = App.Placement(V(0, 0, -6), App.Rotation())
sketch20.addGeometry([
    Part.Circle(V(-22.5, -27.4, 0), V(0, 0, 1), 1.7),
    Part.Circle(V(-22.5, 27.4, 0), V(0, 0, 1), 1.7),
], False)
sketch20.addConstraint([
    Sketcher.Constraint("Equal", 0, 1),
    Sketcher.Constraint("Vertical", 0, 3, 1, 3),
    Sketcher.Constraint("Diameter", 0, Q("3.4 mm")),
    Sketcher.Constraint("DistanceY", -1, 1, 1, 3, Q("27.35 mm")),
    Sketcher.Constraint("DistanceX", 0, 3, -1, 1, Q("22.525 mm")),
    Sketcher.Constraint("DistanceY", 0, 3, -1, 1, Q("27.375 mm")),
])
pocket19 = body.newObject("PartDesign::Pocket", "Pocket018")
pocket19.Profile = sketch20
pocket19.Type = "ThroughAll"
pocket19.Reversed = True
doc.recompute()

mirrored = body.newObject("PartDesign::Mirrored", "Mirrored")
mirrored.Originals = [pocket19]
mirrored.MirrorPlane = (doc.getObject("YZ_Plane"), [""])
body.Tip = mirrored

sketch21 = body.newObject("Sketcher::SketchObject", "Sketch020")
sketch21.AttachmentSupport = (doc.getObject("XZ_Plane"), [""])
sketch21.MapMode = "FlatFace"
sketch21.AttachmentOffset = App.Placement(V(0, 0, -6), App.Rotation())
sketch21.addGeometry(Part.Circle(V(-27, 0, 0), V(0, 0, 1), 1.7), False)
sketch21.addConstraint([
    Sketcher.Constraint("PointOnObject", 0, 3, -1),
    Sketcher.Constraint("Diameter", 0, Q("3.4 mm")),
    Sketcher.Constraint("DistanceX", 0, 3, -1, 1, Q("27 mm")),
])
pocket20 = body.newObject("PartDesign::Pocket", "Pocket019")
pocket20.Profile = sketch21
pocket20.Type = "ThroughAll"
pocket20.Reversed = True
doc.recompute()

linearpattern2 = body.newObject("PartDesign::LinearPattern", "LinearPattern001")
linearpattern2.Originals = [pocket20]
linearpattern2.Direction = (doc.getObject("Z_Axis"), [""])
linearpattern2.Mode = "offset"
linearpattern2.Offset = 10
linearpattern2.Occurrences = 2
body.Tip = linearpattern2
doc.recompute()

linearpattern3 = body.newObject("PartDesign::LinearPattern", "LinearPattern002")
linearpattern3.Originals = [pocket20]
linearpattern3.Direction = (doc.getObject("Z_Axis"), [""])
linearpattern3.Mode = "offset"
linearpattern3.Offset = 10
linearpattern3.Occurrences = 2
linearpattern3.Reversed = True
body.Tip = linearpattern3
doc.recompute()

mirrored2 = body.newObject("PartDesign::Mirrored", "Mirrored001")
mirrored2.Originals = [pocket20]
mirrored2.MirrorPlane = (doc.getObject("YZ_Plane"), [""])
body.Tip = mirrored2

sketch22 = body.newObject("Sketcher::SketchObject", "Sketch021")
sketch22.AttachmentSupport = (doc.getObject("XZ_Plane"), [""])
sketch22.MapMode = "FlatFace"
sketch22.AttachmentOffset = App.Placement(V(0, 0, -6), App.Rotation())
sketch22.addGeometry(Part.Circle(V(27, 10, 0), V(0, 0, 1), 1.7), False)
sketch22.addConstraint([
    Sketcher.Constraint("Diameter", 0, Q("3.4 mm")),
    Sketcher.Constraint("DistanceX", -1, 1, 0, 3, Q("27 mm")),
    Sketcher.Constraint("DistanceY", -1, 1, 0, 3, Q("10 mm")),
])
pocket21 = body.newObject("PartDesign::Pocket", "Pocket020")
pocket21.Profile = sketch22
pocket21.Type = "ThroughAll"
pocket21.Reversed = True

sketch23 = body.newObject("Sketcher::SketchObject", "Sketch022")
sketch23.AttachmentSupport = (doc.getObject("XZ_Plane"), [""])
sketch23.MapMode = "FlatFace"
sketch23.AttachmentOffset = App.Placement(V(0, 0, -6), App.Rotation())
sketch23.addGeometry(Part.Circle(V(27, -10, 0), V(0, 0, 1), 1.7), False)
sketch23.addConstraint([
    Sketcher.Constraint("Diameter", 0, Q("3.4 mm")),
    Sketcher.Constraint("DistanceX", -1, 1, 0, 3, Q("27 mm")),
    Sketcher.Constraint("DistanceY", 0, 3, -1, 1, Q("10 mm")),
])
pocket22 = body.newObject("PartDesign::Pocket", "Pocket021")
pocket22.Profile = sketch23
pocket22.Type = "ThroughAll"
pocket22.Reversed = True

doc.recompute()
